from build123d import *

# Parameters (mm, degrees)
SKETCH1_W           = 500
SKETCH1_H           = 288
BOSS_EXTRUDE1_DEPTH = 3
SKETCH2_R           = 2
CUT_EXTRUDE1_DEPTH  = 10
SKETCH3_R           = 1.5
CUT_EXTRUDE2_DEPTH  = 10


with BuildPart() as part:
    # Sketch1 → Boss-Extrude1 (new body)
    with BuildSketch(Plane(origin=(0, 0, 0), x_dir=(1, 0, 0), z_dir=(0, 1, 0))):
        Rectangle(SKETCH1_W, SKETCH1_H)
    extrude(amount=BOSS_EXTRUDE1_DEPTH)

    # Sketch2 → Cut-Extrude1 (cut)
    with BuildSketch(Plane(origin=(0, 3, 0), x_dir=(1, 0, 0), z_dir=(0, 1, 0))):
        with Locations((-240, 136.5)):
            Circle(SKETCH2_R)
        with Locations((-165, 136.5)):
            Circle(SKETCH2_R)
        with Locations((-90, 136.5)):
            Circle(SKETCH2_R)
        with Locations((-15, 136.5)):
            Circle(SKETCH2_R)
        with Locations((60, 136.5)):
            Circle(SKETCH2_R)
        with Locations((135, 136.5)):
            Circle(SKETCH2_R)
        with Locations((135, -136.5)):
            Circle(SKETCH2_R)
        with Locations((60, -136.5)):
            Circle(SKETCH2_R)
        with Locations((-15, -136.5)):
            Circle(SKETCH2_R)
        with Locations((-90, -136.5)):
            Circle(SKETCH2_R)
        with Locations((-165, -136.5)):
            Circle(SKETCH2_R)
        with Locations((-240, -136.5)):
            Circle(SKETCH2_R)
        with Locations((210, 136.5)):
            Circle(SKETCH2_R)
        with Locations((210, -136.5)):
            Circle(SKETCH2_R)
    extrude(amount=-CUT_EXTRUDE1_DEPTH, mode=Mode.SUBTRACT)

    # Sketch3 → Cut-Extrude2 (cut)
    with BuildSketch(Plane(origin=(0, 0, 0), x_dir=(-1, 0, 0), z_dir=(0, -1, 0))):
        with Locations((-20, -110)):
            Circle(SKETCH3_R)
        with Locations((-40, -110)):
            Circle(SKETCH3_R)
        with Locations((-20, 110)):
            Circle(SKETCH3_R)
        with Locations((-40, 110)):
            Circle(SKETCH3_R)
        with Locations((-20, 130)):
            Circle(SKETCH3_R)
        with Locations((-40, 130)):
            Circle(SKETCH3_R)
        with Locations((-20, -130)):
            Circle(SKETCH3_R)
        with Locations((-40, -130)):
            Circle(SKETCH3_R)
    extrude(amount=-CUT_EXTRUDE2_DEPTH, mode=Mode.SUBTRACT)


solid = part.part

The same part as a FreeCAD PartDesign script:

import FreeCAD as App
import Part
import Sketcher
from FreeCAD import Vector
Q = App.Units.Quantity


def add_polygon(sketch, points):
    """Adds a closed chain of lines whose ends are joined by coincident constraints."""
    first, n = sketch.GeometryCount, len(points)
    for a, b in zip(points, points[1:] + points[:1]):
        sketch.addGeometry(Part.LineSegment(App.Vector(*a, 0), App.Vector(*b, 0)), False)
    for i in range(n):
        sketch.addConstraint(Sketcher.Constraint("Coincident", first + i, 2, first + (i + 1) % n, 1))

doc = App.newDocument("Part")
params = doc.addObject("Spreadsheet::Sheet", "Params")
for row, (alias, value) in enumerate([
    ("sketch1_width", "500 mm"),
    ("sketch1_height", "288 mm"),
    ("pad1_length", "3 mm"),
    ("sketch2_diameter", "4 mm"),
    ("pocket1_length", "10 mm"),
    ("sketch3_diameter", "3 mm"),
    ("pocket2_length", "10 mm"),
], start=1):
    params.set(f"A{row}", alias)
    params.set(f"B{row}", "=" + value)
    params.setAlias(f"B{row}", alias)

body = doc.addObject("PartDesign::Body", "Body")

# Sketch on XZ plane
sketch1 = body.newObject("Sketcher::SketchObject", "Sketch")
sketch1.AttachmentSupport = (doc.getObject("XZ_Plane"), [""])
sketch1.MapMode = "FlatFace"
add_polygon(sketch1, [(-250, -144), (-250, 144), (250, 144), (250, -144)])  # lines 0-3
sketch1.addConstraint([
    Sketcher.Constraint("Vertical", 0),
    Sketcher.Constraint("Horizontal", 1),
    Sketcher.Constraint("Vertical", 2),
    Sketcher.Constraint("Horizontal", 3),
    Sketcher.Constraint("Symmetric", 0, 2, 2, 2, -1, 1),
    Sketcher.Constraint("DistanceX", 1, 1, 1, 2, Q("500 mm")),
    Sketcher.Constraint("DistanceY", 0, 1, 0, 2, Q("288 mm")),
])
sketch1.setExpression("Constraints[9]", "Params.sketch1_width")
sketch1.setExpression("Constraints[10]", "Params.sketch1_height")
pad1 = body.newObject("PartDesign::Pad", "Pad")
pad1.Profile = sketch1
pad1.setExpression("Length", "Params.pad1_length")
pad1.Reversed = True

# Sketch on XZ plane
sketch2 = body.newObject("Sketcher::SketchObject", "Sketch001")
sketch2.AttachmentSupport = (doc.getObject("XZ_Plane"), [""])
sketch2.MapMode = "FlatFace"
sketch2.AttachmentOffset = App.Placement(Vector(0, 0, -3), App.Rotation())
sketch2.addGeometry([
    Part.Circle(Vector(-240, -136.5, 0), Vector(0, 0, 1), 2),  # 0
    Part.Circle(Vector(-165, -136.5, 0), Vector(0, 0, 1), 2),  # 1
    Part.Circle(Vector(-90, -136.5, 0), Vector(0, 0, 1), 2),  # 2
    Part.Circle(Vector(-15, -136.5, 0), Vector(0, 0, 1), 2),  # 3
    Part.Circle(Vector(60, -136.5, 0), Vector(0, 0, 1), 2),  # 4
    Part.Circle(Vector(135, -136.5, 0), Vector(0, 0, 1), 2),  # 5
    Part.Circle(Vector(135, 136.5, 0), Vector(0, 0, 1), 2),  # 6
    Part.Circle(Vector(60, 136.5, 0), Vector(0, 0, 1), 2),  # 7
    Part.Circle(Vector(-15, 136.5, 0), Vector(0, 0, 1), 2),  # 8
    Part.Circle(Vector(-90, 136.5, 0), Vector(0, 0, 1), 2),  # 9
    Part.Circle(Vector(-165, 136.5, 0), Vector(0, 0, 1), 2),  # 10
    Part.Circle(Vector(-240, 136.5, 0), Vector(0, 0, 1), 2),  # 11
    Part.Circle(Vector(210, -136.5, 0), Vector(0, 0, 1), 2),  # 12
    Part.Circle(Vector(210, 136.5, 0), Vector(0, 0, 1), 2),  # 13
], False)
sketch2.addConstraint([
    Sketcher.Constraint("Equal", 0, 1),
    Sketcher.Constraint("Equal", 1, 2),
    Sketcher.Constraint("Equal", 2, 3),
    Sketcher.Constraint("Equal", 3, 4),
    Sketcher.Constraint("Equal", 4, 5),
    Sketcher.Constraint("Equal", 5, 6),
    Sketcher.Constraint("Equal", 6, 7),
    Sketcher.Constraint("Equal", 7, 8),
    Sketcher.Constraint("Equal", 8, 9),
    Sketcher.Constraint("Equal", 9, 10),
    Sketcher.Constraint("Equal", 10, 11),
    Sketcher.Constraint("Equal", 11, 12),
    Sketcher.Constraint("Equal", 12, 13),
    Sketcher.Constraint("Symmetric", 5, 3, 6, 3, -1),
    Sketcher.Constraint("Symmetric", 4, 3, 7, 3, -1),
    Sketcher.Constraint("Symmetric", 3, 3, 8, 3, -1),
    Sketcher.Constraint("Symmetric", 2, 3, 9, 3, -1),
    Sketcher.Constraint("Symmetric", 1, 3, 10, 3, -1),
    Sketcher.Constraint("Symmetric", 0, 3, 11, 3, -1),
    Sketcher.Constraint("Symmetric", 12, 3, 13, 3, -1),
    Sketcher.Constraint("Horizontal", 0, 3, 1, 3),
    Sketcher.Constraint("Horizontal", 1, 3, 2, 3),
    Sketcher.Constraint("Horizontal", 2, 3, 3, 3),
    Sketcher.Constraint("Horizontal", 3, 3, 4, 3),
    Sketcher.Constraint("Horizontal", 4, 3, 5, 3),
    Sketcher.Constraint("Horizontal", 5, 3, 12, 3),
    Sketcher.Constraint("Diameter", 0, Q("4 mm")),
    Sketcher.Constraint("DistanceX", 0, 3, -1, 1, Q("240 mm")),
    Sketcher.Constraint("DistanceX", 1, 3, -1, 1, Q("165 mm")),
    Sketcher.Constraint("DistanceX", 2, 3, -1, 1, Q("90 mm")),
    Sketcher.Constraint("DistanceX", 3, 3, -1, 1, Q("15 mm")),
    Sketcher.Constraint("DistanceX", -1, 1, 4, 3, Q("60 mm")),
    Sketcher.Constraint("DistanceX", -1, 1, 5, 3, Q("135 mm")),
    Sketcher.Constraint("DistanceX", -1, 1, 12, 3, Q("210 mm")),
    Sketcher.Constraint("DistanceY", 5, 3, 6, 3, Q("273 mm")),
])
sketch2.setExpression("Constraints[26]", "Params.sketch2_diameter")
pocket1 = body.newObject("PartDesign::Pocket", "Pocket")
pocket1.Profile = sketch2
pocket1.setExpression("Length", "Params.pocket1_length")
pocket1.Reversed = True

# Sketch on XZ plane
sketch3 = body.newObject("Sketcher::SketchObject", "Sketch002")
sketch3.AttachmentSupport = (doc.getObject("XZ_Plane"), [""])
sketch3.MapMode = "FlatFace"
sketch3.addGeometry([
    Part.Circle(Vector(20, 110, 0), Vector(0, 0, 1), 1.5),  # 0
    Part.Circle(Vector(40, 110, 0), Vector(0, 0, 1), 1.5),  # 1
    Part.Circle(Vector(20, -110, 0), Vector(0, 0, 1), 1.5),  # 2
    Part.Circle(Vector(40, -110, 0), Vector(0, 0, 1), 1.5),  # 3
    Part.Circle(Vector(20, -130, 0), Vector(0, 0, 1), 1.5),  # 4
    Part.Circle(Vector(40, -130, 0), Vector(0, 0, 1), 1.5),  # 5
    Part.Circle(Vector(20, 130, 0), Vector(0, 0, 1), 1.5),  # 6
    Part.Circle(Vector(40, 130, 0), Vector(0, 0, 1), 1.5),  # 7
], False)
sketch3.addConstraint([
    Sketcher.Constraint("Equal", 0, 1),
    Sketcher.Constraint("Equal", 1, 2),
    Sketcher.Constraint("Equal", 2, 3),
    Sketcher.Constraint("Equal", 3, 4),
    Sketcher.Constraint("Equal", 4, 5),
    Sketcher.Constraint("Equal", 5, 6),
    Sketcher.Constraint("Equal", 6, 7),
    Sketcher.Constraint("Symmetric", 0, 3, 2, 3, -1),
    Sketcher.Constraint("Symmetric", 1, 3, 3, 3, -1),
    Sketcher.Constraint("Symmetric", 4, 3, 6, 3, -1),
    Sketcher.Constraint("Symmetric", 5, 3, 7, 3, -1),
    Sketcher.Constraint("Horizontal", 0, 3, 1, 3),
    Sketcher.Constraint("Horizontal", 4, 3, 5, 3),
    Sketcher.Constraint("Vertical", 2, 3, 4, 3),
    Sketcher.Constraint("Vertical", 3, 3, 5, 3),
    Sketcher.Constraint("Diameter", 0, Q("3 mm")),
    Sketcher.Constraint("DistanceX", -1, 1, 0, 3, Q("20 mm")),
    Sketcher.Constraint("DistanceY", -1, 1, 0, 3, Q("110 mm")),
    Sketcher.Constraint("DistanceX", -1, 1, 1, 3, Q("40 mm")),
    Sketcher.Constraint("DistanceY", 4, 3, -1, 1, Q("130 mm")),
])
sketch3.setExpression("Constraints[15]", "Params.sketch3_diameter")
pocket2 = body.newObject("PartDesign::Pocket", "Pocket001")
pocket2.Profile = sketch3
pocket2.setExpression("Length", "Params.pocket2_length")

doc.recompute()
